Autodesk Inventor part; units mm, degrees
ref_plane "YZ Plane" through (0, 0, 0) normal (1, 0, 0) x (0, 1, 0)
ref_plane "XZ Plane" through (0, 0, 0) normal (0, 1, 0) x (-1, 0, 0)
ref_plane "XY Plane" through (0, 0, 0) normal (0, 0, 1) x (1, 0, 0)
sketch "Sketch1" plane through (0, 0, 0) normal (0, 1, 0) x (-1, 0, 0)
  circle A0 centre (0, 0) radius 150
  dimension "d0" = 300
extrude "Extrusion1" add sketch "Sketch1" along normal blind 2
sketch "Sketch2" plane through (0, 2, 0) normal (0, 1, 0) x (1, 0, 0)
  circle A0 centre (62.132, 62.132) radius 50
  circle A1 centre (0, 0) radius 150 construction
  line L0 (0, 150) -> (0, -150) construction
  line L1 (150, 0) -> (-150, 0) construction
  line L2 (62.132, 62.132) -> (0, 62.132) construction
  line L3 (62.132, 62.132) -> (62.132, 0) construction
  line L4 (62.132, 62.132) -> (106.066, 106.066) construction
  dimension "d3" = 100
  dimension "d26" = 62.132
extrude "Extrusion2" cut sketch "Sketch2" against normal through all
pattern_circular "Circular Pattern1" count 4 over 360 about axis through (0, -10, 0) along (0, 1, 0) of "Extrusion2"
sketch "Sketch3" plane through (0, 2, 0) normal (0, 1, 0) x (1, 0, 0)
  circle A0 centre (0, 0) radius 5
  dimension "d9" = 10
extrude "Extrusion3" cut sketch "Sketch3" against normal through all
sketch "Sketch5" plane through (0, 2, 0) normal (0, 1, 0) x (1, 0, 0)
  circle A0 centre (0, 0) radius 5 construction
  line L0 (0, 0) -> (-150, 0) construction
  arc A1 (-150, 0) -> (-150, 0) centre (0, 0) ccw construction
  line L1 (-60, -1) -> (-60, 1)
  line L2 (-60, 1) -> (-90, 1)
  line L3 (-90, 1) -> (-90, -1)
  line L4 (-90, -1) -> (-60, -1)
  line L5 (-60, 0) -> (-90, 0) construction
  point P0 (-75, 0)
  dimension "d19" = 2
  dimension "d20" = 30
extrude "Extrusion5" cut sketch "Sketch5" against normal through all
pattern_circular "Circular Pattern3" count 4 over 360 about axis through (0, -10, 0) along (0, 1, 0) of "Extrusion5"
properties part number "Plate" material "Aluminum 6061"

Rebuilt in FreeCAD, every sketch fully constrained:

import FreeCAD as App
import Part
import Sketcher

V = App.Vector
Q = App.Units.Quantity

doc = App.newDocument("Part")
params = doc.addObject("Spreadsheet::Sheet", "Params")
for row, (alias, value) in enumerate([
    ("sketch1_diameter", "300 mm"),
    ("pad1_length", "2 mm"),
    ("sketch2_diameter", "100 mm"),
    ("sketch3_diameter", "10 mm"),
    ("sketch4_width", "30 mm"),
    ("sketch4_height", "2 mm"),
], start=1):
    params.set(f"A{row}", alias)
    params.set(f"B{row}", "=" + value)
    params.setAlias(f"B{row}", alias)

body = doc.addObject("PartDesign::Body", "Body")

sketch1 = body.newObject("Sketcher::SketchObject", "Sketch")
sketch1.AttachmentSupport = (doc.getObject("XZ_Plane"), [""])
sketch1.MapMode = "FlatFace"
sketch1.addGeometry(Part.Circle(V(0, 0, 0), V(0, 0, 1), 150), False)
sketch1.addConstraint(Sketcher.Constraint("Coincident", 0, 3, -1, 1))
sketch1.addConstraint(Sketcher.Constraint("Diameter", 0, Q("300 mm")))
sketch1.setExpression("Constraints[1]", "Params.sketch1_diameter")
pad1 = body.newObject("PartDesign::Pad", "Pad")
pad1.Profile = sketch1
pad1.setExpression("Length", "Params.pad1_length")
pad1.Reversed = True

sketch2 = body.newObject("Sketcher::SketchObject", "Sketch001")
sketch2.AttachmentSupport = (doc.getObject("XZ_Plane"), [""])
sketch2.MapMode = "FlatFace"
sketch2.AttachmentOffset = App.Placement(V(0, 0, -2), App.Rotation())
sketch2.addGeometry(Part.Circle(V(62.132, -62.132, 0), V(0, 0, 1), 50), False)
sketch2.addConstraint(Sketcher.Constraint("Diameter", 0, Q("100 mm")))
sketch2.addConstraint(Sketcher.Constraint("DistanceX", -1, 1, 0, 3, Q("62.132 mm")))
sketch2.addConstraint(Sketcher.Constraint("DistanceY", 0, 3, -1, 1, Q("62.132 mm")))
sketch2.setExpression("Constraints[0]", "Params.sketch2_diameter")
pocket1 = body.newObject("PartDesign::Pocket", "Pocket")
pocket1.Profile = sketch2
pocket1.Type = "ThroughAll"
pocket1.Reversed = True
doc.recompute()

polarpattern = body.newObject("PartDesign::PolarPattern", "PolarPattern")
polarpattern.Originals = [pocket1]
polarpattern.Axis = (doc.getObject("Y_Axis"), [""])
polarpattern.Angle = 360
polarpattern.Occurrences = 4
body.Tip = polarpattern

sketch3 = body.newObject("Sketcher::SketchObject", "Sketch002")
sketch3.AttachmentSupport = (doc.getObject("XZ_Plane"), [""])
sketch3.MapMode = "FlatFace"
sketch3.AttachmentOffset = App.Placement(V(0, 0, -2), App.Rotation())
sketch3.addGeometry(Part.Circle(V(0, 0, 0), V(0, 0, 1), 5), False)
sketch3.addConstraint(Sketcher.Constraint("Coincident", 0, 3, -1, 1))
sketch3.addConstraint(Sketcher.Constraint("Diameter", 0, Q("10 mm")))
sketch3.setExpression("Constraints[1]", "Params.sketch3_diameter")
pocket2 = body.newObject("PartDesign::Pocket", "Pocket001")
pocket2.Profile = sketch3
pocket2.Type = "ThroughAll"
pocket2.Reversed = True

sketch4 = body.newObject("Sketcher::SketchObject", "Sketch003")
sketch4.AttachmentSupport = (doc.getObject("XZ_Plane"), [""])
sketch4.MapMode = "FlatFace"
sketch4.AttachmentOffset = App.Placement(V(0, 0, -2), App.Rotation())
sketch4.addGeometry(Part.LineSegment(V(-90, 1, 0), V(-60, 1, 0)), False)
sketch4.addGeometry(Part.LineSegment(V(-60, 1, 0), V(-60, -1, 0)), False)
sketch4.addGeometry(Part.LineSegment(V(-60, -1, 0), V(-90, -1, 0)), False)
sketch4.addGeometry(Part.LineSegment(V(-90, -1, 0), V(-90, 1, 0)), False)
sketch4.addConstraint(Sketcher.Constraint("Coincident", 0, 2, 1, 1))
sketch4.addConstraint(Sketcher.Constraint("Coincident", 1, 2, 2, 1))
sketch4.addConstraint(Sketcher.Constraint("Coincident", 2, 2, 3, 1))
sketch4.addConstraint(Sketcher.Constraint("Coincident", 3, 2, 0, 1))
sketch4.addConstraint(Sketcher.Constraint("Horizontal", 0))
sketch4.addConstraint(Sketcher.Constraint("Vertical", 1))
sketch4.addConstraint(Sketcher.Constraint("Horizontal", 2))
sketch4.addConstraint(Sketcher.Constraint("Vertical", 3))
sketch4.addConstraint(Sketcher.Constraint("DistanceX", 0, 1, 0, 2, Q("30 mm")))
sketch4.addConstraint(Sketcher.Constraint("DistanceY", 1, 2, 1, 1, Q("2 mm")))
sketch4.addConstraint(Sketcher.Constraint("DistanceX", 0, 2, -1, 1, Q("60 mm")))
sketch4.addConstraint(Sketcher.Constraint("DistanceY", -1, 1, 0, 2, Q("1 mm")))
sketch4.setExpression("Constraints[8]", "Params.sketch4_width")
sketch4.setExpression("Constraints[9]", "Params.sketch4_height")
pocket3 = body.newObject("PartDesign::Pocket", "Pocket002")
pocket3.Profile = sketch4
pocket3.Type = "ThroughAll"
pocket3.Reversed = True
doc.recompute()

polarpattern2 = body.newObject("PartDesign::PolarPattern", "PolarPattern001")
polarpattern2.Originals = [pocket3]
polarpattern2.Axis = (doc.getObject("Y_Axis"), [""])
polarpattern2.Angle = 360
polarpattern2.Occurrences = 4
body.Tip = polarpattern2

doc.recompute()
